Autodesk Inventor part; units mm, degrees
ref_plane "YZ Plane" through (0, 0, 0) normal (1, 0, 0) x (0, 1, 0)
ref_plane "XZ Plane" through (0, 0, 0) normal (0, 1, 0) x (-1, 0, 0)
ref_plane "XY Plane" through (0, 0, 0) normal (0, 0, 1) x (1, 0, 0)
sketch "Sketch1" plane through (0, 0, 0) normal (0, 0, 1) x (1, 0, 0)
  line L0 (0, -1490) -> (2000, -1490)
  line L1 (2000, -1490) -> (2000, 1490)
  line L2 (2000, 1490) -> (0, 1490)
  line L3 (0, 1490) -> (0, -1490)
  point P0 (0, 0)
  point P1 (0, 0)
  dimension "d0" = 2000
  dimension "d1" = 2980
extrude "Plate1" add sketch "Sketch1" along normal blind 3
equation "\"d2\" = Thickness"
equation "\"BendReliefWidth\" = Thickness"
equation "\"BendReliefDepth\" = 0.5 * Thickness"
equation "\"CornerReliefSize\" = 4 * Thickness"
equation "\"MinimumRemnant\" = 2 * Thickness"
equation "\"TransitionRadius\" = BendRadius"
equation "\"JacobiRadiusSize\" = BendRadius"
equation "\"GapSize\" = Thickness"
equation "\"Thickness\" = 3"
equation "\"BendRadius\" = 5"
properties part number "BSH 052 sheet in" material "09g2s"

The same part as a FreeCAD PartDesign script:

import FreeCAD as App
import Part
import Sketcher

V = App.Vector

doc = App.newDocument("Part")
body = doc.addObject("PartDesign::Body", "Body")

# Sketch on XY plane
sketch1 = body.newObject("Sketcher::SketchObject", "Sketch")
sketch1.AttachmentSupport = (doc.getObject("XY_Plane"), [""])
sketch1.MapMode = "FlatFace"
sketch1.addGeometry(Part.LineSegment(V(0, 1490, 0), V(0, -1490, 0)), False)
sketch1.addGeometry(Part.LineSegment(V(0, -1490, 0), V(2000, -1490, 0)), False)
sketch1.addGeometry(Part.LineSegment(V(2000, -1490, 0), V(2000, 1490, 0)), False)
sketch1.addGeometry(Part.LineSegment(V(2000, 1490, 0), V(0, 1490, 0)), False)
sketch1.addConstraint(Sketcher.Constraint("Coincident", 0, 2, 1, 1))
sketch1.addConstraint(Sketcher.Constraint("Coincident", 1, 2, 2, 1))
sketch1.addConstraint(Sketcher.Constraint("Coincident", 2, 2, 3, 1))
sketch1.addConstraint(Sketcher.Constraint("Coincident", 3, 2, 0, 1))
sketch1.addConstraint(Sketcher.Constraint("Vertical", 0))
sketch1.addConstraint(Sketcher.Constraint("Horizontal", 1))
sketch1.addConstraint(Sketcher.Constraint("Vertical", 2))
sketch1.addConstraint(Sketcher.Constraint("Horizontal", 3))
sketch1.addConstraint(Sketcher.Constraint("Symmetric", 0, 2, 3, 2, -1, 1))
sketch1.addConstraint(Sketcher.Constraint("DistanceX", 1, 1, 1, 2, 2000.0))
sketch1.addConstraint(Sketcher.Constraint("DistanceY", 0, 2, 0, 1, 2980.0))
pad1 = body.newObject("PartDesign::Pad", "Pad")
pad1.Profile = sketch1
pad1.Length = 3

doc.recompute()
